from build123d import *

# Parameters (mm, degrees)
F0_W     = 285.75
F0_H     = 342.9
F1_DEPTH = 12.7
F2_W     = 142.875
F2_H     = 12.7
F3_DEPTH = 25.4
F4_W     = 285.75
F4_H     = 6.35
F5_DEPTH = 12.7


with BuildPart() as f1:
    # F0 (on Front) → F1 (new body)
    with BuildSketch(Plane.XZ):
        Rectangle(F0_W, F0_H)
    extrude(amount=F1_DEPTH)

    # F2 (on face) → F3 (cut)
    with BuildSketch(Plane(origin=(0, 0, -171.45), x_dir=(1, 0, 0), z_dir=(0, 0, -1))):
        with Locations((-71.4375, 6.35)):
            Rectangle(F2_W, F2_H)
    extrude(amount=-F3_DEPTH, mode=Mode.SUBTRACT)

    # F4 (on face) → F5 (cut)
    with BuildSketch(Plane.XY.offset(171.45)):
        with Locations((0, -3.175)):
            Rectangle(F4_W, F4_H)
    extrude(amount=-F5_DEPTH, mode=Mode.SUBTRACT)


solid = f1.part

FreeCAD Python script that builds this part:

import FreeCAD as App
import Part
import Sketcher
from FreeCAD import Vector
Q = App.Units.Quantity

doc = App.newDocument("Part")
body = doc.addObject("PartDesign::Body", "Body")

sketch1 = body.newObject("Sketcher::SketchObject", "Sketch")
sketch1.AttachmentSupport = (doc.getObject("XZ_Plane"), [""])
sketch1.MapMode = "FlatFace"
sketch1.addGeometry([
    Part.LineSegment(Vector(-142.875, 171.45, 0), Vector(-142.875, -171.45, 0)),
    Part.LineSegment(Vector(-142.875, -171.45, 0), Vector(142.875, -171.45, 0)),
    Part.LineSegment(Vector(142.875, -171.45, 0), Vector(142.875, 171.45, 0)),
    Part.LineSegment(Vector(142.875, 171.45, 0), Vector(-142.875, 171.45, 0)),
], False)
sketch1.addConstraint([
    Sketcher.Constraint("Coincident", 0, 2, 1, 1),
    Sketcher.Constraint("Coincident", 1, 2, 2, 1),
    Sketcher.Constraint("Coincident", 2, 2, 3, 1),
    Sketcher.Constraint("Coincident", 3, 2, 0, 1),
    Sketcher.Constraint("Vertical", 0),
    Sketcher.Constraint("Horizontal", 1),
    Sketcher.Constraint("Vertical", 2),
    Sketcher.Constraint("Horizontal", 3),
    Sketcher.Constraint("Symmetric", 0, 2, 2, 2, -1, 1),
    Sketcher.Constraint("DistanceY", 0, 2, 0, 1, Q("13.5 in")),
    Sketcher.Constraint("DistanceX", 1, 1, 1, 2, Q("11.25 in")),
])
pad1 = body.newObject("PartDesign::Pad", "Pad")
pad1.Profile = sketch1
pad1.Length = Q("0.5 in")

sketch2 = body.newObject("Sketcher::SketchObject", "Sketch001")
sketch2.AttachmentSupport = (doc.getObject("XY_Plane"), [""])
sketch2.MapMode = "FlatFace"
sketch2.AttachmentOffset = App.Placement(Vector(0, 0, -6.75 * 25.4), App.Rotation())
sketch2.addGeometry([
    Part.LineSegment(Vector(-142.875, -12.7, 0), Vector(-142.875, 0, 0)),
    Part.LineSegment(Vector(-142.875, 0, 0), Vector(0, 0, 0)),
    Part.LineSegment(Vector(0, 0, 0), Vector(0, -12.7, 0)),
    Part.LineSegment(Vector(0, -12.7, 0), Vector(-142.875, -12.7, 0)),
], False)
sketch2.addConstraint([
    Sketcher.Constraint("Coincident", 0, 2, 1, 1),
    Sketcher.Constraint("Coincident", 1, 2, 2, 1),
    Sketcher.Constraint("Coincident", 2, 2, 3, 1),
    Sketcher.Constraint("Coincident", 3, 2, 0, 1),
    Sketcher.Constraint("Vertical", 0),
    Sketcher.Constraint("Horizontal", 1),
    Sketcher.Constraint("Vertical", 2),
    Sketcher.Constraint("Horizontal", 3),
    Sketcher.Constraint("Coincident", 1, 2, -1, 1),
    Sketcher.Constraint("DistanceY", 0, 1, 0, 2, Q("0.5 in")),
    Sketcher.Constraint("DistanceX", 1, 1, 1, 2, Q("5.625 in")),
])
pocket1 = body.newObject("PartDesign::Pocket", "Pocket")
pocket1.Profile = sketch2
pocket1.Length = Q("1 in")
pocket1.Reversed = True

sketch3 = body.newObject("Sketcher::SketchObject", "Sketch002")
sketch3.AttachmentSupport = (doc.getObject("XY_Plane"), [""])
sketch3.MapMode = "FlatFace"
sketch3.AttachmentOffset = App.Placement(Vector(0, 0, 6.75 * 25.4), App.Rotation())
sketch3.addGeometry([
    Part.LineSegment(Vector(-142.875, 0, 0), Vector(-142.875, -6.35, 0)),
    Part.LineSegment(Vector(-142.875, -6.35, 0), Vector(142.875, -6.35, 0)),
    Part.LineSegment(Vector(142.875, -6.35, 0), Vector(142.875, 0, 0)),
    Part.LineSegment(Vector(142.875, 0, 0), Vector(-142.875, 0, 0)),
], False)
sketch3.addConstraint([
    Sketcher.Constraint("Coincident", 0, 2, 1, 1),
    Sketcher.Constraint("Coincident", 1, 2, 2, 1),
    Sketcher.Constraint("Coincident", 2, 2, 3, 1),
    Sketcher.Constraint("Coincident", 3, 2, 0, 1),
    Sketcher.Constraint("Vertical", 0),
    Sketcher.Constraint("Horizontal", 1),
    Sketcher.Constraint("Vertical", 2),
    Sketcher.Constraint("Horizontal", 3),
    Sketcher.Constraint("Symmetric", 2, 2, 3, 2, -1, 1),
    Sketcher.Constraint("DistanceX", 1, 1, 1, 2, Q("11.25 in")),
    Sketcher.Constraint("DistanceY", 0, 2, 0, 1, Q("0.25 in")),
])
pocket2 = body.newObject("PartDesign::Pocket", "Pocket001")
pocket2.Profile = sketch3
pocket2.Length = Q("0.5 in")

doc.recompute()
